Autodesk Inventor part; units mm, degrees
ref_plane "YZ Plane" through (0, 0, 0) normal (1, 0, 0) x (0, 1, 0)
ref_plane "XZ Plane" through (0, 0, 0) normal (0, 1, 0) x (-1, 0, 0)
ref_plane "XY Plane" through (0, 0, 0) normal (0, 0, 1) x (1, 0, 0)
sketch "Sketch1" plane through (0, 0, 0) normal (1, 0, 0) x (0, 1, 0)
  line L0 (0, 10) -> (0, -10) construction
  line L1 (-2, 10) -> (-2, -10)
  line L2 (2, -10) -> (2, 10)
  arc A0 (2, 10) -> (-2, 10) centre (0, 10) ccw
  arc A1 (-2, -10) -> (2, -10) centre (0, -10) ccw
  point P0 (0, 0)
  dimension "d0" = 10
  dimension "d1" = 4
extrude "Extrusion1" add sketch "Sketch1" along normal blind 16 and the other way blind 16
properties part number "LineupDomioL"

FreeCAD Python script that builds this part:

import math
import FreeCAD as App
import Part
import Sketcher
from FreeCAD import Vector
Q = App.Units.Quantity

doc = App.newDocument("Part")
params = doc.addObject("Spreadsheet::Sheet", "Params")
for row, (alias, value) in enumerate([
    ("sketch1_radius", "2 mm"),
    ("pad1_length", "16 mm"),
    ("pad1_length2", "16 mm"),
], start=1):
    params.set(f"A{row}", alias)
    params.set(f"B{row}", "=" + value)
    params.setAlias(f"B{row}", alias)

body = doc.addObject("PartDesign::Body", "Body")

sketch1 = body.newObject("Sketcher::SketchObject", "Sketch")
sketch1.AttachmentSupport = (doc.getObject("YZ_Plane"), [""])
sketch1.MapMode = "FlatFace"
sketch1.addGeometry([
    Part.ArcOfCircle(Part.Circle(Vector(0, 10, 0), Vector(0, 0, 1), 2), math.radians(0), math.radians(180)),
    Part.LineSegment(Vector(-2, 10, 0), Vector(-2, -10, 0)),
    Part.ArcOfCircle(Part.Circle(Vector(0, -10, 0), Vector(0, 0, 1), 2), math.radians(180), math.radians(360)),
    Part.LineSegment(Vector(2, -10, 0), Vector(2, 10, 0)),
], False)
sketch1.addConstraint([
    Sketcher.Constraint("Tangent", 0, 2, 1, 1),
    Sketcher.Constraint("Tangent", 1, 2, 2, 1),
    Sketcher.Constraint("Tangent", 2, 2, 3, 1),
    Sketcher.Constraint("Tangent", 3, 2, 0, 1),
    Sketcher.Constraint("Vertical", 1),
    Sketcher.Constraint("Vertical", 3),
    Sketcher.Constraint("Symmetric", 0, 3, 2, 3, -1, 1),
    Sketcher.Constraint("Radius", 0, Q("2 mm")),
    Sketcher.Constraint("DistanceY", -1, 1, 0, 3, Q("10 mm")),
])
sketch1.setExpression("Constraints[7]", "Params.sketch1_radius")
pad1 = body.newObject("PartDesign::Pad", "Pad")
pad1.Profile = sketch1
pad1.Type = "TwoLengths"
pad1.setExpression("Length", "Params.pad1_length")
pad1.setExpression("Length2", "Params.pad1_length2")

doc.recompute()
